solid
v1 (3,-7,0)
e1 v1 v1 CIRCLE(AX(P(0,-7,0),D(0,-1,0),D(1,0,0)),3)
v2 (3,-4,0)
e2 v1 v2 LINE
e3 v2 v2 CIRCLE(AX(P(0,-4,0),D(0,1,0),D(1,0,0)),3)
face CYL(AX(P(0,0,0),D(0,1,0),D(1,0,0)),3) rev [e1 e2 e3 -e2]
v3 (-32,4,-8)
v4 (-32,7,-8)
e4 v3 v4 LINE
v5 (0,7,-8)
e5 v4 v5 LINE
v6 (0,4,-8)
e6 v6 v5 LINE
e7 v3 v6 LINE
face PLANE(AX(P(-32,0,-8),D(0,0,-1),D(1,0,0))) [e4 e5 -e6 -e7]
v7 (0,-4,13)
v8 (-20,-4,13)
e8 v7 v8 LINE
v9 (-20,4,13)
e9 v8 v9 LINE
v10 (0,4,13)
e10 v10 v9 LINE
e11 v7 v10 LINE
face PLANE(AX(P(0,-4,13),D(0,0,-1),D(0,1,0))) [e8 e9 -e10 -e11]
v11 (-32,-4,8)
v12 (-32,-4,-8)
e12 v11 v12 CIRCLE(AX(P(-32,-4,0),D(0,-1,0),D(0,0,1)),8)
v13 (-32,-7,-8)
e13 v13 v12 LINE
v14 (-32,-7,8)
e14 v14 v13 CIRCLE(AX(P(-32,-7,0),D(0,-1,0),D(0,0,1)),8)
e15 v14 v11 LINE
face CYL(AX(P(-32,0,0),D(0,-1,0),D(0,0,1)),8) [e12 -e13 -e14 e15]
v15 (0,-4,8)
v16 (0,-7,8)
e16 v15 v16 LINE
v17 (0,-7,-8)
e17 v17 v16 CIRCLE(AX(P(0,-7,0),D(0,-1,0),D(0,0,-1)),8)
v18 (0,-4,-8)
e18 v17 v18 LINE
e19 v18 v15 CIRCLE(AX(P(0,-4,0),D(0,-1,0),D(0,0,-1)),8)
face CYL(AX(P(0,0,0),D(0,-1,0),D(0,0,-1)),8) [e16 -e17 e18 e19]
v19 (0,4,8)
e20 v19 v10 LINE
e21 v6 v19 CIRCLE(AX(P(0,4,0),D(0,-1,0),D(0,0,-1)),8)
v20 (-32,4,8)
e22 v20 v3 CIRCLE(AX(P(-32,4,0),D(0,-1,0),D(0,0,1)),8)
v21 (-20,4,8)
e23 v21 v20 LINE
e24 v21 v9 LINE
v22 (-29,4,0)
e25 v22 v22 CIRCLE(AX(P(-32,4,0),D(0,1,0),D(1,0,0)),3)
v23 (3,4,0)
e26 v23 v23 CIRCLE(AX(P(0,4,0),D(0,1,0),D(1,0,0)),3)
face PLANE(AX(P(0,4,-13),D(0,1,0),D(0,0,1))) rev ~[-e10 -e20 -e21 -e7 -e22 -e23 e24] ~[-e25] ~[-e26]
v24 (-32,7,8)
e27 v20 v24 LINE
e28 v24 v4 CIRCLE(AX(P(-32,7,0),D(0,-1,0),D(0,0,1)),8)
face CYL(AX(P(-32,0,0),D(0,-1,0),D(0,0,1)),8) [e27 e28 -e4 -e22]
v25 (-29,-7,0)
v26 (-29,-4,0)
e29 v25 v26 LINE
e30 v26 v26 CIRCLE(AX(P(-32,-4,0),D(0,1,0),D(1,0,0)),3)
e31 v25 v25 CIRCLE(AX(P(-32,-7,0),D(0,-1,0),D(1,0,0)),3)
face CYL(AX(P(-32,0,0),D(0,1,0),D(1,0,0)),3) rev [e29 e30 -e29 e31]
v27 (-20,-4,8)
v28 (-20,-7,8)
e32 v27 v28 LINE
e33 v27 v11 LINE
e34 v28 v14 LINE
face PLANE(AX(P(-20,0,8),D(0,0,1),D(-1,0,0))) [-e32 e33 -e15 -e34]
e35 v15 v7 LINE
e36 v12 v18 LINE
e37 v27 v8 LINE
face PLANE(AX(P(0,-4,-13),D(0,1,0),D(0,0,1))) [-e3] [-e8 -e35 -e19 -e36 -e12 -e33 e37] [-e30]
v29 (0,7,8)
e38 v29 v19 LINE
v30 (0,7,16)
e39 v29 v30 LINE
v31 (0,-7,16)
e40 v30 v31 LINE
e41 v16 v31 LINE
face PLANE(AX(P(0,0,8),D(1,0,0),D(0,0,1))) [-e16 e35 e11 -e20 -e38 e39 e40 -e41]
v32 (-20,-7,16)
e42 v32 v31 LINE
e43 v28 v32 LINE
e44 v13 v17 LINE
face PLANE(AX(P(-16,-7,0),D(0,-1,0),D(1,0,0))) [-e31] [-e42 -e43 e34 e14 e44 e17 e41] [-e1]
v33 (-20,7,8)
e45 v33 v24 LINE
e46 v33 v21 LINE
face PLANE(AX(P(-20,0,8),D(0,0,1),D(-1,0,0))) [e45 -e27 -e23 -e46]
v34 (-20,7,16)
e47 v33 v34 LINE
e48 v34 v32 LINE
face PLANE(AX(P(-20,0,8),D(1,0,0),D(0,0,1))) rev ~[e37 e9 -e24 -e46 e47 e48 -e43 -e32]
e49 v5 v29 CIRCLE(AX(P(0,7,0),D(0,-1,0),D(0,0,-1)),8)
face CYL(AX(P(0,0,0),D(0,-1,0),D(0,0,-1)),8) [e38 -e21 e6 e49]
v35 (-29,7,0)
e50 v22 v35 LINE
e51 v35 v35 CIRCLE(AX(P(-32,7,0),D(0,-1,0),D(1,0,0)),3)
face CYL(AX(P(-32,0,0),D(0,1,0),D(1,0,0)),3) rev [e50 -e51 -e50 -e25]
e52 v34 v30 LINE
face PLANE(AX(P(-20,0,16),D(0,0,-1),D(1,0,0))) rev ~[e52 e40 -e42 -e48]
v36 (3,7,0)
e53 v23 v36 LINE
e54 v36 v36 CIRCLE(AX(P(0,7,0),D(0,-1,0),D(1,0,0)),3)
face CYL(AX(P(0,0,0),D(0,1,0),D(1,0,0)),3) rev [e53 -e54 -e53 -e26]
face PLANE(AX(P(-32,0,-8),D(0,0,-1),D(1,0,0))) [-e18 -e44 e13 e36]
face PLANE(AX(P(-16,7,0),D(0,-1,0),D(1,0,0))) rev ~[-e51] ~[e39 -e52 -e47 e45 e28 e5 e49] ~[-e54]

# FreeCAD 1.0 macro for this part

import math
import FreeCAD as App
import Part
import Sketcher


def add_polygon(sketch, points):
    """Adds a closed chain of lines whose ends are joined by coincident constraints."""
    first, n = sketch.GeometryCount, len(points)
    for a, b in zip(points, points[1:] + points[:1]):
        sketch.addGeometry(Part.LineSegment(App.Vector(*a, 0), App.Vector(*b, 0)), False)
    for i in range(n):
        sketch.addConstraint(Sketcher.Constraint("Coincident", first + i, 2, first + (i + 1) % n, 1))

doc = App.newDocument("Part")
body = doc.addObject("PartDesign::Body", "Body")

sketch1 = body.newObject("Sketcher::SketchObject", "Sketch")
sketch1.AttachmentSupport = (doc.getObject("XZ_Plane"), [""])
sketch1.MapMode = "FlatFace"
sketch1.addGeometry([
    Part.ArcOfCircle(Part.Circle(App.Vector(0, 0, 0), App.Vector(0, 0, 1), 8), math.radians(-90), math.radians(90)),
    Part.LineSegment(App.Vector(0, 8, 0), App.Vector(0, 16, 0)),
    Part.LineSegment(App.Vector(0, 16, 0), App.Vector(-20, 16, 0)),
    Part.LineSegment(App.Vector(-20, 16, 0), App.Vector(-20, 8, 0)),
    Part.LineSegment(App.Vector(-20, 8, 0), App.Vector(-32, 8, 0)),
    Part.ArcOfCircle(Part.Circle(App.Vector(-32, 0, 0), App.Vector(0, 0, 1), 8), math.radians(90), math.radians(270)),
    Part.LineSegment(App.Vector(-32, -8, 0), App.Vector(0, -8, 0)),
    Part.Circle(App.Vector(-32, 0, 0), App.Vector(0, 0, 1), 3),
    Part.Circle(App.Vector(0, 0, 0), App.Vector(0, 0, 1), 3),
], False)
sketch1.addConstraint([
    Sketcher.Constraint("Coincident", 0, 2, 1, 1),
    Sketcher.Constraint("Coincident", 1, 2, 2, 1),
    Sketcher.Constraint("Coincident", 2, 2, 3, 1),
    Sketcher.Constraint("Coincident", 3, 2, 4, 1),
    Sketcher.Constraint("Tangent", 4, 2, 5, 1),
    Sketcher.Constraint("Tangent", 5, 2, 6, 1),
    Sketcher.Constraint("Tangent", 6, 2, 0, 1),
    Sketcher.Constraint("Vertical", 1),
    Sketcher.Constraint("Horizontal", 2),
    Sketcher.Constraint("Vertical", 3),
    Sketcher.Constraint("Horizontal", 4),
    Sketcher.Constraint("Horizontal", 6),
    Sketcher.Constraint("Coincident", 0, 3, -1, 1),
    Sketcher.Constraint("Coincident", 8, 3, -1, 1),
    Sketcher.Constraint("Coincident", 7, 3, 5, 3),
    Sketcher.Constraint("Equal", 0, 5),
    Sketcher.Constraint("Equal", 7, 8),
    Sketcher.Constraint("PointOnObject", 0, 2, -2),
    Sketcher.Constraint("Diameter", 7, 6.0),
    Sketcher.Constraint("Radius", 0, 8.0),
    Sketcher.Constraint("DistanceX", 2, 2, 2, 1, 20.0),
    Sketcher.Constraint("DistanceX", 4, 2, 4, 1, 12.0),
    Sketcher.Constraint("DistanceY", 1, 1, 1, 2, 8.0),
])
pad1 = body.newObject("PartDesign::Pad", "Pad")
pad1.Profile = sketch1
pad1.Length = 14
pad1.Midplane = True

sketch2 = body.newObject("Sketcher::SketchObject", "Sketch001")
sketch2.AttachmentSupport = (doc.getObject("YZ_Plane"), [""])
sketch2.MapMode = "FlatFace"
add_polygon(sketch2, [(-4, 13), (-4, -13), (4, -13), (4, 13)])
sketch2.addConstraint([
    Sketcher.Constraint("Vertical", 0),
    Sketcher.Constraint("Horizontal", 1),
    Sketcher.Constraint("Vertical", 2),
    Sketcher.Constraint("Horizontal", 3),
    Sketcher.Constraint("Symmetric", 0, 2, 2, 2, -1, 1),
    Sketcher.Constraint("DistanceX", 1, 1, 1, 2, 8.0),
    Sketcher.Constraint("DistanceY", 0, 2, 0, 1, 26.0),
])
pocket1 = body.newObject("PartDesign::Pocket", "Pocket")
pocket1.Profile = sketch2
pocket1.Length = 117.78572
pocket1.Midplane = True

doc.recompute()
